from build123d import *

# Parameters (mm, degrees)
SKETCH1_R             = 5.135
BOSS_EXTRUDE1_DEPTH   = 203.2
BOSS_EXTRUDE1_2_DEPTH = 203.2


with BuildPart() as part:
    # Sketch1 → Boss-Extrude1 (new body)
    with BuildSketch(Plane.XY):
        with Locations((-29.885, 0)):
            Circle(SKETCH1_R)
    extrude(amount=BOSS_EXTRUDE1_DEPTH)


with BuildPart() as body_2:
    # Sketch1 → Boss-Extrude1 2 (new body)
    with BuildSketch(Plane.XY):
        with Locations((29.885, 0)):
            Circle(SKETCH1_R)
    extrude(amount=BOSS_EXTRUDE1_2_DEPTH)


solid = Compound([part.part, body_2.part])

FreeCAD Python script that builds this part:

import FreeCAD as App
import Part
import Sketcher
from FreeCAD import Vector
Q = App.Units.Quantity

doc = App.newDocument("Part")
body = doc.addObject("PartDesign::Body", "Body")

sketch1 = body.newObject("Sketcher::SketchObject", "Sketch")
sketch1.AttachmentSupport = (doc.getObject("XY_Plane"), [""])
sketch1.MapMode = "FlatFace"
sketch1.addGeometry(Part.Circle(Vector(-30, 0, 0), Vector(0, 0, 1), 5), False)
sketch1.addConstraint(Sketcher.Constraint("PointOnObject", 0, 3, -1))
sketch1.addConstraint(Sketcher.Constraint("Diameter", 0, Q("10.27 mm")))
sketch1.addConstraint(Sketcher.Constraint("DistanceX", 0, 3, -1, 1, Q("29.885 mm")))
pad1 = body.newObject("PartDesign::Pad", "Pad")
pad1.Profile = sketch1
pad1.Length = Q("8 in")
body2 = doc.addObject("PartDesign::Body", "Body001")

sketch2 = body2.newObject("Sketcher::SketchObject", "Sketch001")
sketch2.AttachmentSupport = (doc.getObject("XY_Plane001"), [""])
sketch2.MapMode = "FlatFace"
sketch2.addGeometry(Part.Circle(Vector(30, 0, 0), Vector(0, 0, 1), 5), False)
sketch2.addConstraint(Sketcher.Constraint("PointOnObject", 0, 3, -1))
sketch2.addConstraint(Sketcher.Constraint("Diameter", 0, Q("10.27 mm")))
sketch2.addConstraint(Sketcher.Constraint("DistanceX", -1, 1, 0, 3, Q("29.885 mm")))
pad2 = body2.newObject("PartDesign::Pad", "Pad001")
pad2.Profile = sketch2
pad2.Length = Q("8 in")

doc.recompute()
